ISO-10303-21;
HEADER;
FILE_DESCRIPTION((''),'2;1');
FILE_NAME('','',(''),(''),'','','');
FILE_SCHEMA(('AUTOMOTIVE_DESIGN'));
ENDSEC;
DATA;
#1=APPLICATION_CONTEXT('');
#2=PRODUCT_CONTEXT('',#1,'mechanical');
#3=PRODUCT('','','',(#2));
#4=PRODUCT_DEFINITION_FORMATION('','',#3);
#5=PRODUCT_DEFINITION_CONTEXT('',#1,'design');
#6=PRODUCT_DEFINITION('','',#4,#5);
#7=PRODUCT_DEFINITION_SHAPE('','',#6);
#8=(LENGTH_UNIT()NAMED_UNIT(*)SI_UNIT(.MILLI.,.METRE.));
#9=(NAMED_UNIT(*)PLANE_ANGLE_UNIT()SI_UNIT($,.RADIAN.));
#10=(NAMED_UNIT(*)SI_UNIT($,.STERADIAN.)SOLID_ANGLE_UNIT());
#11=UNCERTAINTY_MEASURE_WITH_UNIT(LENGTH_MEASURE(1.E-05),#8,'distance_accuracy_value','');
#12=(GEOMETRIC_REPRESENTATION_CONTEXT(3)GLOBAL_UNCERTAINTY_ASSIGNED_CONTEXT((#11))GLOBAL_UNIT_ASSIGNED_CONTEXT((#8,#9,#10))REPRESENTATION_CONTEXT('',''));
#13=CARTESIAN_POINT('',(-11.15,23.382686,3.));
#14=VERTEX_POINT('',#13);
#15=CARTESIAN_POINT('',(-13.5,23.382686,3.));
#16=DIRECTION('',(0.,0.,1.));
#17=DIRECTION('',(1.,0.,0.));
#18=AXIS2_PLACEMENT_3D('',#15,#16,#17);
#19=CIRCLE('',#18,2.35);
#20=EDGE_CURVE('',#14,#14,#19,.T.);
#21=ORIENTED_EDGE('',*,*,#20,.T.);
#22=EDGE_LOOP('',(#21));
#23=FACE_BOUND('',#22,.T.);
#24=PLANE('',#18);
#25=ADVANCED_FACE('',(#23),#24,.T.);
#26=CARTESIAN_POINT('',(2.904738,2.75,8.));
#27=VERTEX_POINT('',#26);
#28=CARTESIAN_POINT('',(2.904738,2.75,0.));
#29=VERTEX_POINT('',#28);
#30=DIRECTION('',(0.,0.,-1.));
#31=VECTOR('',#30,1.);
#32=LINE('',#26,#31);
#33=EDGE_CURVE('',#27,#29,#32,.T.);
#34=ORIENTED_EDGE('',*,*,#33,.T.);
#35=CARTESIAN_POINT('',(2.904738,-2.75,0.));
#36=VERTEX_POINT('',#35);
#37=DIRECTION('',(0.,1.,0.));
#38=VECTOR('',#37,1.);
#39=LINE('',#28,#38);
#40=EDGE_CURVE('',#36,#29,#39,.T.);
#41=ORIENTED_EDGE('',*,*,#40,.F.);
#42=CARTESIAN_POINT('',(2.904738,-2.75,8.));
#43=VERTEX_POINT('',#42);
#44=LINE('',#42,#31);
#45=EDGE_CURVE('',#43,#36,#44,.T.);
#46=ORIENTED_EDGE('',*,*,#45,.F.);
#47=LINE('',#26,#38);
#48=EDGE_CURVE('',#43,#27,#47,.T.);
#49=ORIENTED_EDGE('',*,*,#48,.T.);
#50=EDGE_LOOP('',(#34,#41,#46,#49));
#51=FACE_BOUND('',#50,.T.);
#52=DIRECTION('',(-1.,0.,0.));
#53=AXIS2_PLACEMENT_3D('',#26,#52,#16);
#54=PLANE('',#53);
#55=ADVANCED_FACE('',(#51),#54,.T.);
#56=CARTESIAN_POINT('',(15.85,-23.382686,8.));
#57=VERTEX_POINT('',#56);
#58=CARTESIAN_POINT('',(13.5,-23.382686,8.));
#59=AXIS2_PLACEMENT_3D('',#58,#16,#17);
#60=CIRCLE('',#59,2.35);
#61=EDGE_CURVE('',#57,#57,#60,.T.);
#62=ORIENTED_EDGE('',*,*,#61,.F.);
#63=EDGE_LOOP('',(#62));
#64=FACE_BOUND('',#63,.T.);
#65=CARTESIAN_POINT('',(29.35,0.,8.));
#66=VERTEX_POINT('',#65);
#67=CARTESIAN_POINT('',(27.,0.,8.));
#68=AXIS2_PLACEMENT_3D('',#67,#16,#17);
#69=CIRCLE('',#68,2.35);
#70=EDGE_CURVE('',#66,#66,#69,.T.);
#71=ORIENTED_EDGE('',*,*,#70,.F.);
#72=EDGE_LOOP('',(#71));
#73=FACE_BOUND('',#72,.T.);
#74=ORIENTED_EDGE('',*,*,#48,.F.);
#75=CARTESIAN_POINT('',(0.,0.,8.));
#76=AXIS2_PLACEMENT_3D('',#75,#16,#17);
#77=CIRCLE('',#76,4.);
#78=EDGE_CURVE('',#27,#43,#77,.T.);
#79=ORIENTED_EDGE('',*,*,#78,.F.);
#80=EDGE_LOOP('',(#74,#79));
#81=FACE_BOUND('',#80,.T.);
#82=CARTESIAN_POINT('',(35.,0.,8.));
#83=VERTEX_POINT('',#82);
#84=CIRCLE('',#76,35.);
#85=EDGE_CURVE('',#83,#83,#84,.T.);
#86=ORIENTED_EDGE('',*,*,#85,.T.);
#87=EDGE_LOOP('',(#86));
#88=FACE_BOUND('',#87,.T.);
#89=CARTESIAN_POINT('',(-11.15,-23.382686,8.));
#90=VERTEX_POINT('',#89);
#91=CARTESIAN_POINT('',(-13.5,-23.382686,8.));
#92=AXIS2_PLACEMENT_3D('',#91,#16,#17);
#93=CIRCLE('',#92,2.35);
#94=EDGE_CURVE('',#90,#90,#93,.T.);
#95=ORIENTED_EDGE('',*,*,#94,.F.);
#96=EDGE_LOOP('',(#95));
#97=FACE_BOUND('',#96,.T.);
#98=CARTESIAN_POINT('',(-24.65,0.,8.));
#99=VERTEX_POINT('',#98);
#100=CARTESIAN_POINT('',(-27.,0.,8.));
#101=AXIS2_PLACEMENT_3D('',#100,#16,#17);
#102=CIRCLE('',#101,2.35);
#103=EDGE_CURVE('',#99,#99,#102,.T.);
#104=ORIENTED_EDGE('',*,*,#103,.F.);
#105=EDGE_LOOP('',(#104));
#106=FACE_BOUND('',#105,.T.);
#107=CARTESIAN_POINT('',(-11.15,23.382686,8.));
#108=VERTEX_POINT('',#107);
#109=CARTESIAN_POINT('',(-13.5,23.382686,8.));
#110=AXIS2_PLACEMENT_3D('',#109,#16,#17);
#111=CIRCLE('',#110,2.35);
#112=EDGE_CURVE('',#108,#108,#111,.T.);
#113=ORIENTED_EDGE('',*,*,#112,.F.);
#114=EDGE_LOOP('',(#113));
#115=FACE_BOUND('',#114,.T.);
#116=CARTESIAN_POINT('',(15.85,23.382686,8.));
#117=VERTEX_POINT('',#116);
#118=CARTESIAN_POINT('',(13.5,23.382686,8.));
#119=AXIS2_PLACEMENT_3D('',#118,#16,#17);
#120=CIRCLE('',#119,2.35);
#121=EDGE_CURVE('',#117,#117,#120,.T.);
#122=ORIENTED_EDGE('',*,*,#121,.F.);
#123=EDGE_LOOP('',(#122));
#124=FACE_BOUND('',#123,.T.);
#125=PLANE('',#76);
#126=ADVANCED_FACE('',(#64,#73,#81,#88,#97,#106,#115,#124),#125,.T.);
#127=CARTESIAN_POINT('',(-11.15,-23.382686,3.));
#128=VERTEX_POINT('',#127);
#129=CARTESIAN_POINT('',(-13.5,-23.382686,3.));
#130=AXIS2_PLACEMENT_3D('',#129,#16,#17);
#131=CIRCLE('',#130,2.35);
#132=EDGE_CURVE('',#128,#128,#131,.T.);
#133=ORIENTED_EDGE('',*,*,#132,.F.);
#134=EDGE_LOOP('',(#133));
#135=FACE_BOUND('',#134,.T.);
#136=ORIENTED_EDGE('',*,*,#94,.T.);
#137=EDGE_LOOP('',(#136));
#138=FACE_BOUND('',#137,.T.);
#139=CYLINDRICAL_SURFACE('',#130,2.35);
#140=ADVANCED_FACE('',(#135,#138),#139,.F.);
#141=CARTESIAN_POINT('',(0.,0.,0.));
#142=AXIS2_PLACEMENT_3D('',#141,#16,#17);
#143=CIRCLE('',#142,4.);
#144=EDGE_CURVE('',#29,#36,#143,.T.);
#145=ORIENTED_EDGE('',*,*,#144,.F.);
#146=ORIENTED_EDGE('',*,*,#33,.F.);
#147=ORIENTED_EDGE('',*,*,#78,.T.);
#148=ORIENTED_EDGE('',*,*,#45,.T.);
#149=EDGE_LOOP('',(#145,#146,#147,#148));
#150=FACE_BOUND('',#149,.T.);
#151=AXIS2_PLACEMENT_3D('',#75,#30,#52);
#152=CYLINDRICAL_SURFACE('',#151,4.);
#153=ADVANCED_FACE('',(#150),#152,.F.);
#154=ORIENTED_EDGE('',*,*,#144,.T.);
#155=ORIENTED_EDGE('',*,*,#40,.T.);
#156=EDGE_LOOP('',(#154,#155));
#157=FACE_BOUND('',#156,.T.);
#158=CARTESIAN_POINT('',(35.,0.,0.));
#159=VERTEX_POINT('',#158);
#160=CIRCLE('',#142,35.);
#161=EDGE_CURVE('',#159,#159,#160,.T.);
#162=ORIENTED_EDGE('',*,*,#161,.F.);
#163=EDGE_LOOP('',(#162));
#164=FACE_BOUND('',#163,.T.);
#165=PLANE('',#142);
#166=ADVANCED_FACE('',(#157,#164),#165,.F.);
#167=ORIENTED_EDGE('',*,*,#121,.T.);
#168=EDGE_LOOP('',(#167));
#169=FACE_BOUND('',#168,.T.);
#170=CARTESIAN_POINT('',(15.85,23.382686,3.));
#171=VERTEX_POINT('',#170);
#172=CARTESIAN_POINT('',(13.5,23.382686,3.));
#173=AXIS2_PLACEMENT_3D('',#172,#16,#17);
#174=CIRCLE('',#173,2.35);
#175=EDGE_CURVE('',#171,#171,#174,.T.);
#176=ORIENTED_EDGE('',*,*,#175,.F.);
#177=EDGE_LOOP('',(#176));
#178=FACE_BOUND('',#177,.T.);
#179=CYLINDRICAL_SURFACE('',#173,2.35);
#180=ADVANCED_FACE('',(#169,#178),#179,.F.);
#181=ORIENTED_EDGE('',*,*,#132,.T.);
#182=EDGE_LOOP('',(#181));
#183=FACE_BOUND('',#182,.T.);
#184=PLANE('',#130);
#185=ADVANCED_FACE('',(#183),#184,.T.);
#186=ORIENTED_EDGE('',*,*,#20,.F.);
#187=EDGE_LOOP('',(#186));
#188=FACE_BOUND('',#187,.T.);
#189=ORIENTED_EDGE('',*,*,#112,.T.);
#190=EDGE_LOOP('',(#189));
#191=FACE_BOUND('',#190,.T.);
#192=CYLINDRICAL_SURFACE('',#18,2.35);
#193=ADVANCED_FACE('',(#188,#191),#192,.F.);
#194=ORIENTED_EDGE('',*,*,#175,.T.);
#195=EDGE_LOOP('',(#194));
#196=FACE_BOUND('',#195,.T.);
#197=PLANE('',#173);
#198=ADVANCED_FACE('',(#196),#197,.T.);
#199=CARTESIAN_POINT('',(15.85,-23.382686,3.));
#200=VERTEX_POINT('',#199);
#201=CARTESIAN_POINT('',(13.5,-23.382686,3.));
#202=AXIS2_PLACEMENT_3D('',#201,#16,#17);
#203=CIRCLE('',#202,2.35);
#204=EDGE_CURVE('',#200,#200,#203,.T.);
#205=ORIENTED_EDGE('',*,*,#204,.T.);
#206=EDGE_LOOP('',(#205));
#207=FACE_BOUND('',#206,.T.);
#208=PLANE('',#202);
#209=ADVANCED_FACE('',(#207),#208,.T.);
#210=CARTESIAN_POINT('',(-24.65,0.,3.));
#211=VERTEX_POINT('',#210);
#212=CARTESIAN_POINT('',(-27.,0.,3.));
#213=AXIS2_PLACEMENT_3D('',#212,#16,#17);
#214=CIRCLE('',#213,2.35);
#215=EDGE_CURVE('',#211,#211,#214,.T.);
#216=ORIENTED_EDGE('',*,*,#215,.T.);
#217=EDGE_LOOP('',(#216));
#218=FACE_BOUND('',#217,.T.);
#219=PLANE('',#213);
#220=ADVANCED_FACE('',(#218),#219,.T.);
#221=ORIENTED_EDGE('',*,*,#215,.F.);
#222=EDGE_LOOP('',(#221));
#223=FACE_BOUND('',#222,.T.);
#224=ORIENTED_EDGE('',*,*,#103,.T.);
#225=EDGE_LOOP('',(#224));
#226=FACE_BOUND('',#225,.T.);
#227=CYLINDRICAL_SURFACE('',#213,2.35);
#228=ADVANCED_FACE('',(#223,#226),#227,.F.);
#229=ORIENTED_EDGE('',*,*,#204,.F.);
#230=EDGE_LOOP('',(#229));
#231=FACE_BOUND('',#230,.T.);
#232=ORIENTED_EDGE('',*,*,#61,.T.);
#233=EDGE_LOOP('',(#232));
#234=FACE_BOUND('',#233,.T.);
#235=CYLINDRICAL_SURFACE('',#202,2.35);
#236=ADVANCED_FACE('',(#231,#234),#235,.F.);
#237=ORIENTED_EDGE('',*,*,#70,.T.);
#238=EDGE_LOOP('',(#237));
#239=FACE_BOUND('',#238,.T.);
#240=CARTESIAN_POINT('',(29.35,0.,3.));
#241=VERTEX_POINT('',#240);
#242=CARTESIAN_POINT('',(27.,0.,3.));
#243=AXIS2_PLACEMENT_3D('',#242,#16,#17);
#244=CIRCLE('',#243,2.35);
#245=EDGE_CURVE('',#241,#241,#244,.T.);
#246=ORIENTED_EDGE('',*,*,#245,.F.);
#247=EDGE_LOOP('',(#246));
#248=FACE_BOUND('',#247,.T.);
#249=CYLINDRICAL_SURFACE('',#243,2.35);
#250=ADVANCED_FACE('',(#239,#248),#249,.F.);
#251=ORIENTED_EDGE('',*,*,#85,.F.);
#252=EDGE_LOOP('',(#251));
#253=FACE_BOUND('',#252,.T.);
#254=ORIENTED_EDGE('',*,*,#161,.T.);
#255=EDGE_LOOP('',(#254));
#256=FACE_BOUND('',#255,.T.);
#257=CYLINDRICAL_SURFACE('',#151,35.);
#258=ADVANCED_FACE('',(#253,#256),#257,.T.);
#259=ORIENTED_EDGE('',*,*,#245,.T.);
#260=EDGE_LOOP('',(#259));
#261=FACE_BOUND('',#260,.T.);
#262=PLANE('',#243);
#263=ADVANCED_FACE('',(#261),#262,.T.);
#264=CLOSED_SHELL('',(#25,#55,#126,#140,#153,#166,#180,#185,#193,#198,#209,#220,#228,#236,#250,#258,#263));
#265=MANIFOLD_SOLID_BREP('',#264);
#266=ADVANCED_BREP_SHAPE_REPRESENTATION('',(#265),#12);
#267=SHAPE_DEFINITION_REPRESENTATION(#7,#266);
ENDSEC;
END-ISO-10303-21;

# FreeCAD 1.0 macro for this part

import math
import FreeCAD as App
import Part
import Sketcher
from FreeCAD import Vector

doc = App.newDocument("Part")
body = doc.addObject("PartDesign::Body", "Body")

# Sketch on XY plane
sketch1 = body.newObject("Sketcher::SketchObject", "Sketch")
sketch1.AttachmentSupport = (doc.getObject("XY_Plane"), [""])
sketch1.MapMode = "FlatFace"
sketch1.addGeometry([
    Part.Circle(Vector(0, 0, 0), Vector(0, 0, 1), 35),
    Part.ArcOfCircle(Part.Circle(Vector(0, 0, 0), Vector(0, 0, 1), 4), math.radians(43), math.radians(317)),
    Part.LineSegment(Vector(2.9, 2.8, 0), Vector(2.9, -2.8, 0)),
], False)
sketch1.addConstraint([
    Sketcher.Constraint("Coincident", 1, 1, 2, 1),
    Sketcher.Constraint("Coincident", 2, 2, 1, 2),
    Sketcher.Constraint("Vertical", 2),
    Sketcher.Constraint("Coincident", 0, 3, -1, 1),
    Sketcher.Constraint("Coincident", 1, 3, -1, 1),
    Sketcher.Constraint("Diameter", 0, 70.0),
    Sketcher.Constraint("Radius", 1, 4.0),
    Sketcher.Constraint("DistanceY", 2, 2, 2, 1, 5.5),
])
pad1 = body.newObject("PartDesign::Pad", "Pad")
pad1.Profile = sketch1
pad1.Length = 8

# Sketch on XY plane
sketch2 = body.newObject("Sketcher::SketchObject", "Sketch001")
sketch2.AttachmentSupport = (doc.getObject("XY_Plane"), [""])
sketch2.MapMode = "FlatFace"
sketch2.AttachmentOffset = App.Placement(Vector(0, 0, 8), App.Rotation())
sketch2.addGeometry([
    Part.Circle(Vector(27, 0, 0), Vector(0, 0, 1), 2.4),  # 0
    Part.Circle(Vector(13.5, -23.4, 0), Vector(0, 0, 1), 2.4),  # 1
    Part.Circle(Vector(-13.5, -23.4, 0), Vector(0, 0, 1), 2.4),  # 2
    Part.Circle(Vector(-27, 0, 0), Vector(0, 0, 1), 2.4),  # 3
    Part.Circle(Vector(-13.5, 23.4, 0), Vector(0, 0, 1), 2.4),  # 4
    Part.Circle(Vector(13.5, 23.4, 0), Vector(0, 0, 1), 2.4),  # 5
], False)
sketch2.addConstraint([
    Sketcher.Constraint("Equal", 0, 1),
    Sketcher.Constraint("Equal", 1, 2),
    Sketcher.Constraint("Equal", 2, 3),
    Sketcher.Constraint("Equal", 3, 4),
    Sketcher.Constraint("Equal", 4, 5),
    Sketcher.Constraint("Symmetric", 0, 3, 3, 3, -1, 1),
    Sketcher.Constraint("Symmetric", 1, 3, 4, 3, -1, 1),
    Sketcher.Constraint("Symmetric", 2, 3, 5, 3, -1, 1),
    Sketcher.Constraint("Symmetric", 1, 3, 2, 3, -2),
    Sketcher.Constraint("PointOnObject", 0, 3, -1),
    Sketcher.Constraint("Diameter", 0, 4.7),
    Sketcher.Constraint("DistanceX", -1, 1, 0, 3, 27.0),
    Sketcher.Constraint("DistanceX", 2, 3, 1, 3, 27.0),
    Sketcher.Constraint("DistanceY", 2, 3, 4, 3, 46.765372),
])
pocket1 = body.newObject("PartDesign::Pocket", "Pocket")
pocket1.Profile = sketch2
pocket1.Length = 5

doc.recompute()
